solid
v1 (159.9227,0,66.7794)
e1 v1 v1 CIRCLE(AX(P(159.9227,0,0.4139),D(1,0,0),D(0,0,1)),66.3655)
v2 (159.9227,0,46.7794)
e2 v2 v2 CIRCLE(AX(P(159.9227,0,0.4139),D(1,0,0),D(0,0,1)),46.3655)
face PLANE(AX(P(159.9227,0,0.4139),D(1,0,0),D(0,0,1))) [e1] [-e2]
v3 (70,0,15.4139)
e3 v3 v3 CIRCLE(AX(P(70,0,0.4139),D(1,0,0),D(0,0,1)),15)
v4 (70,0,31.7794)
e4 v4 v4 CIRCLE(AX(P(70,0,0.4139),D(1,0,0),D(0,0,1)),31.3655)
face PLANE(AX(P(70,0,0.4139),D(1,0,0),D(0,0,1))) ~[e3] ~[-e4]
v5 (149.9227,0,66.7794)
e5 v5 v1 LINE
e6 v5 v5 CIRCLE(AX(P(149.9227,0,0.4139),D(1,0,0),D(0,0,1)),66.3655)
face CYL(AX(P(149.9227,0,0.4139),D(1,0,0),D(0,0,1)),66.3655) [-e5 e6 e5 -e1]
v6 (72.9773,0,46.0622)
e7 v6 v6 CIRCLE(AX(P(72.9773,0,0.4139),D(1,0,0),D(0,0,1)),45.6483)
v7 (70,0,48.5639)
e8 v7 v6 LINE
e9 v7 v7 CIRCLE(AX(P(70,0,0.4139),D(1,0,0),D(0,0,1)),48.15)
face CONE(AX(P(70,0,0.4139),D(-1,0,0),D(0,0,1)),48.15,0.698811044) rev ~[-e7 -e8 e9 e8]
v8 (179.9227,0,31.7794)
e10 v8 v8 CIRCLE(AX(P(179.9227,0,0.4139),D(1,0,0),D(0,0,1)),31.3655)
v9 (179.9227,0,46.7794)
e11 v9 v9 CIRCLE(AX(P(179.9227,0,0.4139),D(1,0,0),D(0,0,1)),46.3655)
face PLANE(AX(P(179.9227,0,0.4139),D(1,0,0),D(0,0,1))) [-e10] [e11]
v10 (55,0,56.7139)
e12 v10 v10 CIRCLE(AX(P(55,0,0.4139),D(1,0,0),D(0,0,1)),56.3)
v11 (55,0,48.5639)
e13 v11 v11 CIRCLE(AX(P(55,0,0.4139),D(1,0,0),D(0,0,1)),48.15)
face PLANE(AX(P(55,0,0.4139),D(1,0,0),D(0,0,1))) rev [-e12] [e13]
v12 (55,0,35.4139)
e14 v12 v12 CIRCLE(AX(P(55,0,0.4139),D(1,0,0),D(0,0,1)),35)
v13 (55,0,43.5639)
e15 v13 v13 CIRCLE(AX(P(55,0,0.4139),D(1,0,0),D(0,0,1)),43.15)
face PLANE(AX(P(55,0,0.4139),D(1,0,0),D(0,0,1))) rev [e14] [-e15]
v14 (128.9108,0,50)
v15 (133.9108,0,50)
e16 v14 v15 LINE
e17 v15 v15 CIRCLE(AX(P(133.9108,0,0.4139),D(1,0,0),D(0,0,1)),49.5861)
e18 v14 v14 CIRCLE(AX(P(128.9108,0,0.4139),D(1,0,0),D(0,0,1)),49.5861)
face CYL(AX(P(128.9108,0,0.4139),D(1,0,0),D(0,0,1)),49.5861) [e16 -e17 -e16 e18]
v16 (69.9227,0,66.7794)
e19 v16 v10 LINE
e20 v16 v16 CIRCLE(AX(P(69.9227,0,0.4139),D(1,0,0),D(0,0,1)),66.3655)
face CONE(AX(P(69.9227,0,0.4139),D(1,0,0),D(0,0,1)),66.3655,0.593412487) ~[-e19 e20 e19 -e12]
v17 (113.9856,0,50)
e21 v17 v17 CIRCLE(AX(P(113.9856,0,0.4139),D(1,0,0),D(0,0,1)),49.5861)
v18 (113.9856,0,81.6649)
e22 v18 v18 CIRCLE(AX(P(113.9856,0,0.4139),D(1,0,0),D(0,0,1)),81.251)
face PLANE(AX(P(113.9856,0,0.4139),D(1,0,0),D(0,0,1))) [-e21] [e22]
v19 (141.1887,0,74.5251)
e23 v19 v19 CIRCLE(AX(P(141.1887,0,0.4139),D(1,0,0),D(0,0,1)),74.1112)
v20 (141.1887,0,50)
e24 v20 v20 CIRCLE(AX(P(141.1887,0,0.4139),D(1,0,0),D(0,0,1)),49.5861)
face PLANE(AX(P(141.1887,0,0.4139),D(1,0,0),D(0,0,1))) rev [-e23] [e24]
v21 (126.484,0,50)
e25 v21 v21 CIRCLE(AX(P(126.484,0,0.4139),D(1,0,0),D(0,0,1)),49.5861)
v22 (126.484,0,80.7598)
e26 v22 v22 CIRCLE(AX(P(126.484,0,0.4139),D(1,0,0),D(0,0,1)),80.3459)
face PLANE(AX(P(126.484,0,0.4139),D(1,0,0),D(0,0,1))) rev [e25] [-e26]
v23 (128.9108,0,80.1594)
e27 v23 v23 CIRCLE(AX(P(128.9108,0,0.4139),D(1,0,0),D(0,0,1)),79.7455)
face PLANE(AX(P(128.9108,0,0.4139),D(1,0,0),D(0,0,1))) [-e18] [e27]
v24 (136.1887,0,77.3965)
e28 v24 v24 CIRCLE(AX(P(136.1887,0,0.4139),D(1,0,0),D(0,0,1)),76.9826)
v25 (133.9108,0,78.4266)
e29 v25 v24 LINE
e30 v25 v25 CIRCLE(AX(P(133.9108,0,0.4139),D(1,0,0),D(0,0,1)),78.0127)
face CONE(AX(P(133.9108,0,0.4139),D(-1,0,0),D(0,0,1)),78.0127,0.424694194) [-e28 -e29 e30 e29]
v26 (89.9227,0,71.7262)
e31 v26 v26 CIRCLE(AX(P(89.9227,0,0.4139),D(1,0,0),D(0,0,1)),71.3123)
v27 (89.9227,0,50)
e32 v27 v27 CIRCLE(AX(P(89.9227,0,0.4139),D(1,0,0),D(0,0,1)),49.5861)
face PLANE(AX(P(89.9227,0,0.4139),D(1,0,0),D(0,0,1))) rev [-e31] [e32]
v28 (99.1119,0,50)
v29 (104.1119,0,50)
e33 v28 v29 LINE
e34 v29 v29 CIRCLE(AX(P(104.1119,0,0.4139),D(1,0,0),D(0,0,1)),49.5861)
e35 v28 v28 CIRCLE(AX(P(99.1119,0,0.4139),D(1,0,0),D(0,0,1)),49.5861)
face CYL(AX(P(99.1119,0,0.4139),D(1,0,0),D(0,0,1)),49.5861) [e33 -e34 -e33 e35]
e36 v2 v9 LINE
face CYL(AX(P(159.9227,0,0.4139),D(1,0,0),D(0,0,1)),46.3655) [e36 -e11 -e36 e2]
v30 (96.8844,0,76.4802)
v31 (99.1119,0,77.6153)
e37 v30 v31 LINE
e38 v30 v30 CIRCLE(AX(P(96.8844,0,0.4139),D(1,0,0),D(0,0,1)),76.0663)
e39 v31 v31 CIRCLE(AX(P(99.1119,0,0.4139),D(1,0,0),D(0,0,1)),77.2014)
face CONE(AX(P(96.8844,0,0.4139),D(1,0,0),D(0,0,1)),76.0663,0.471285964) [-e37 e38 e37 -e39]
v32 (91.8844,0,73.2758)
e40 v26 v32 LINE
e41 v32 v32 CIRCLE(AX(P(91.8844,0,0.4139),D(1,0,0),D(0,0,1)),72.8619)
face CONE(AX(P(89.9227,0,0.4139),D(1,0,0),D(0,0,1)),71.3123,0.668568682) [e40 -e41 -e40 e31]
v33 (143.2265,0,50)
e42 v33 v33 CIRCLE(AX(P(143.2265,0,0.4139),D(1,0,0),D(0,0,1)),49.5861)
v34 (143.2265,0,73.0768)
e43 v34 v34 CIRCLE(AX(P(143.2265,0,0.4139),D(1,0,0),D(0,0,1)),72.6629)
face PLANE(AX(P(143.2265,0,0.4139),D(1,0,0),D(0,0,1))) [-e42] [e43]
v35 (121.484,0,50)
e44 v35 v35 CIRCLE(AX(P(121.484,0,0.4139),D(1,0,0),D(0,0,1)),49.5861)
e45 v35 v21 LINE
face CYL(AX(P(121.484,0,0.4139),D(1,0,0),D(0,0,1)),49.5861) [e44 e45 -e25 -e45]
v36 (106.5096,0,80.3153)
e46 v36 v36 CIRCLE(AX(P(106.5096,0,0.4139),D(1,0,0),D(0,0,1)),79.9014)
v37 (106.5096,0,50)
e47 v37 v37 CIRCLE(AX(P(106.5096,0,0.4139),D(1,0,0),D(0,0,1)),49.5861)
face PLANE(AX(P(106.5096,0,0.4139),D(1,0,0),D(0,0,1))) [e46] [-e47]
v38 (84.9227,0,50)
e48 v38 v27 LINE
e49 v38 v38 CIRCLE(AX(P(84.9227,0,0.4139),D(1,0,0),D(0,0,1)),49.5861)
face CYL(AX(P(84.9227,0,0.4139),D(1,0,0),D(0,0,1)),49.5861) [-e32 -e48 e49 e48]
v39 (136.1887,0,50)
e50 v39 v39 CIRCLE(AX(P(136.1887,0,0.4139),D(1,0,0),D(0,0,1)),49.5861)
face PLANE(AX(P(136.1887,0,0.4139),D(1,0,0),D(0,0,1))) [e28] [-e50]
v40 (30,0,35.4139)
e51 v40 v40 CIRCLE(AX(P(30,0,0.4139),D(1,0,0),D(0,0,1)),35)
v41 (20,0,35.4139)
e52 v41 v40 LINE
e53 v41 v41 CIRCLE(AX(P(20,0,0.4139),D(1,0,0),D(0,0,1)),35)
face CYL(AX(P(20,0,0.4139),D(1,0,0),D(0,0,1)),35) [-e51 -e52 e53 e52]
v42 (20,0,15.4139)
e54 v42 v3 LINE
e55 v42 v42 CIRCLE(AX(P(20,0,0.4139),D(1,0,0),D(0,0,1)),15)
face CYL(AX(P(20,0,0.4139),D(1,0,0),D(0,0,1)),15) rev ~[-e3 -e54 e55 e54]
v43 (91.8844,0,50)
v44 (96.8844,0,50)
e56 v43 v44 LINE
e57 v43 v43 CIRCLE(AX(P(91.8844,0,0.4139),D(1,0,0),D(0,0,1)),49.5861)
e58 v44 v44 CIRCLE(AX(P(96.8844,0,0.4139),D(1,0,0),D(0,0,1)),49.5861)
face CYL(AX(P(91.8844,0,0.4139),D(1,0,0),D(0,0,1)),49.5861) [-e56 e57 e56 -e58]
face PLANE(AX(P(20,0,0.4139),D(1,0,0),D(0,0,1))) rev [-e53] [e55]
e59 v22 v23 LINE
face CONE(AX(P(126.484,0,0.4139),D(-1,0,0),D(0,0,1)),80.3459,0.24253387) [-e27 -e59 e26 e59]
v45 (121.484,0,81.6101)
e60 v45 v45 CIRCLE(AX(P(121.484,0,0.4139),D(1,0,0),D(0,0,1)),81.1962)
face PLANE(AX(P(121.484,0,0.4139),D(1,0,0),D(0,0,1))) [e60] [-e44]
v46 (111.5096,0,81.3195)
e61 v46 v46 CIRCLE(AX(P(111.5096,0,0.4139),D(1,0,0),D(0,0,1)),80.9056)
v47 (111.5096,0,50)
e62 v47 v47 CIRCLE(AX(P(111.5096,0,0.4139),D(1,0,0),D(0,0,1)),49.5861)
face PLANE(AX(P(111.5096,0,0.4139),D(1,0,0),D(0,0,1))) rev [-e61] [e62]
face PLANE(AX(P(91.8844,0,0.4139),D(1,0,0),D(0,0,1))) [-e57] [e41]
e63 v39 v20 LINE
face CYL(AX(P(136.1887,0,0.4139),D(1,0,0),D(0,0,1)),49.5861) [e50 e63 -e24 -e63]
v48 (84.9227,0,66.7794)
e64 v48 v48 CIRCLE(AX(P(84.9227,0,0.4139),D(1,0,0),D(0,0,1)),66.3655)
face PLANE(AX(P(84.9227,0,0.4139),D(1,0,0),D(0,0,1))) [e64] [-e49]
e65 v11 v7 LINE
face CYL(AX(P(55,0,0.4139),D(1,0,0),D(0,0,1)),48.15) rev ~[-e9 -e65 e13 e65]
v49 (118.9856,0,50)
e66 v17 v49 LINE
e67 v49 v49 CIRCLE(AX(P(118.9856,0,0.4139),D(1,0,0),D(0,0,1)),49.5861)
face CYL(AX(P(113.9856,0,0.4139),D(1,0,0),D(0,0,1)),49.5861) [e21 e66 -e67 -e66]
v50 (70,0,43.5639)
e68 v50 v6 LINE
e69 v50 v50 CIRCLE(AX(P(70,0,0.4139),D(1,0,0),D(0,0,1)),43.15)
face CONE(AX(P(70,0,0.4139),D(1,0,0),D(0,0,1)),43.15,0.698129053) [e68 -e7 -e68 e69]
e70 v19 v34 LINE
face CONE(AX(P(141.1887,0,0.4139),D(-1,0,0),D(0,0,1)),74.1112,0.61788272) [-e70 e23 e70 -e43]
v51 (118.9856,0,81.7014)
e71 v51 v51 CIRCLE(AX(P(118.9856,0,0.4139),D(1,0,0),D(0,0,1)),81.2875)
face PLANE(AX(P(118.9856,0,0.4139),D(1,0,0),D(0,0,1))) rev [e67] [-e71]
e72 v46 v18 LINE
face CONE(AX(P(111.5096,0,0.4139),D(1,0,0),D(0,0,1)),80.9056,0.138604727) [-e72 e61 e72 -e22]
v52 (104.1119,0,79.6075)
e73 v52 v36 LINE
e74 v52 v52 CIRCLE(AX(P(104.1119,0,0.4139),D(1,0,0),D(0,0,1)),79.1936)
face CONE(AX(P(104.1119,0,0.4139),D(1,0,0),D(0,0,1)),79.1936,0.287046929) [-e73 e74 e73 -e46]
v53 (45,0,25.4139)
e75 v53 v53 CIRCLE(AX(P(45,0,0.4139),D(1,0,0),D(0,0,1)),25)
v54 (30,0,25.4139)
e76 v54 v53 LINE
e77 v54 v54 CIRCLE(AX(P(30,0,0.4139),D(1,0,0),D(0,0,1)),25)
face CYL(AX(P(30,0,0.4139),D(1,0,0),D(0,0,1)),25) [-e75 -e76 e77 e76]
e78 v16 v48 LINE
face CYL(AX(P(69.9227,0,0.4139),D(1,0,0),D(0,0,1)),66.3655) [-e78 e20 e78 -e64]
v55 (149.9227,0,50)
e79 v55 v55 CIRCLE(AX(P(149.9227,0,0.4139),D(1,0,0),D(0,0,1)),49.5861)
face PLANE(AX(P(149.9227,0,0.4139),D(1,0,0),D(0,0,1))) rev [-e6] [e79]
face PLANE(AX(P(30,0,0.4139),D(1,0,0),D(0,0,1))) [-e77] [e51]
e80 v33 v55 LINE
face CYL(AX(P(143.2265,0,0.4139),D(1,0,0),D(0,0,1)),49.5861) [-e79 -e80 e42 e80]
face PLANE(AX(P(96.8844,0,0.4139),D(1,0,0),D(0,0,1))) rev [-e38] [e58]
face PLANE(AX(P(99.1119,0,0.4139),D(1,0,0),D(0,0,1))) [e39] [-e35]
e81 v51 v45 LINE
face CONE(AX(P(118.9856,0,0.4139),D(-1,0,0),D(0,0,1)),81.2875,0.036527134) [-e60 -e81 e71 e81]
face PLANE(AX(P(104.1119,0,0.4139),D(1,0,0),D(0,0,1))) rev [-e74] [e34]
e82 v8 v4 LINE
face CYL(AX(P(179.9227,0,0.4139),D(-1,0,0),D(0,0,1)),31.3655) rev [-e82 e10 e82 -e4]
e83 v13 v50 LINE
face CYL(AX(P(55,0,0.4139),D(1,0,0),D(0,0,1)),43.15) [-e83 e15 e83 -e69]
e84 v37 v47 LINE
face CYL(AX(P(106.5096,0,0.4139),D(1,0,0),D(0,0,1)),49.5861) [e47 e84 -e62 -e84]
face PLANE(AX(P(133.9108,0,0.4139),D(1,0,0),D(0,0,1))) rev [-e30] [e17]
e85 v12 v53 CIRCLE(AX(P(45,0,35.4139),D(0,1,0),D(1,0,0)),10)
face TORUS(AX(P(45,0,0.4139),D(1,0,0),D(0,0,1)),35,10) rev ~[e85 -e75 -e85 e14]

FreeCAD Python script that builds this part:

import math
import FreeCAD as App
import Part
import Sketcher

V = App.Vector
Q = App.Units.Quantity

doc = App.newDocument("Part")
params = doc.addObject("Spreadsheet::Sheet", "Params")
for row, (alias, value) in enumerate([
    ("sketch1_radius", "10 mm"),
    ("sketch1_width", "50 mm"),
    ("sketch1_width2", "5 mm"),
    ("sketch1_width3", "20 mm"),
    ("sketch1_length", "18 mm"),
    ("revolution_angle", "360 deg"),
], start=1):
    params.set(f"A{row}", alias)
    params.set(f"B{row}", "=" + value)
    params.setAlias(f"B{row}", alias)

body = doc.addObject("PartDesign::Body", "Body")

sketch1 = body.newObject("Sketcher::SketchObject", "Sketch")
sketch1.AttachmentSupport = (doc.getObject("XZ_Plane"), [""])
sketch1.MapMode = "FlatFace"
sketch1.addGeometry([
    Part.LineSegment(V(70, 15.4, 0), V(20, 15.4, 0)),
    Part.LineSegment(V(20, 15.4, 0), V(20, 35.4, 0)),
    Part.LineSegment(V(20, 35.4, 0), V(30, 35.4, 0)),
    Part.LineSegment(V(30, 35.4, 0), V(30, 25.4, 0)),
    Part.LineSegment(V(30, 25.4, 0), V(45, 25.4, 0)),
    Part.ArcOfCircle(Part.Circle(V(45, 35.4, 0), V(0, 0, 1), 10), math.radians(-90), math.radians(0)),
    Part.LineSegment(V(55, 35.4, 0), V(55, 43.6, 0)),
    Part.LineSegment(V(55, 43.6, 0), V(70, 43.6, 0)),
    Part.LineSegment(V(70, 43.6, 0), V(73, 46.1, 0)),
    Part.LineSegment(V(73, 46.1, 0), V(70, 48.6, 0)),
    Part.LineSegment(V(70, 48.6, 0), V(55, 48.6, 0)),
    Part.LineSegment(V(55, 48.6, 0), V(55, 56.7, 0)),
    Part.LineSegment(V(55, 56.7, 0), V(69.9, 66.8, 0)),
    Part.LineSegment(V(69.9, 66.8, 0), V(84.9, 66.8, 0)),
    Part.LineSegment(V(84.9, 66.8, 0), V(84.9, 50, 0)),
    Part.LineSegment(V(84.9, 50, 0), V(89.9, 50, 0)),
    Part.LineSegment(V(89.9, 50, 0), V(89.9, 71.7, 0)),
    Part.LineSegment(V(89.9, 71.7, 0), V(91.9, 73.3, 0)),
    Part.LineSegment(V(91.9, 73.3, 0), V(91.9, 50, 0)),
    Part.LineSegment(V(91.9, 50, 0), V(96.9, 50, 0)),
    Part.LineSegment(V(96.9, 50, 0), V(96.9, 76.5, 0)),
    Part.LineSegment(V(96.9, 76.5, 0), V(99.1, 77.6, 0)),
    Part.LineSegment(V(99.1, 77.6, 0), V(99.1, 50, 0)),
    Part.LineSegment(V(99.1, 50, 0), V(104.1, 50, 0)),
    Part.LineSegment(V(104.1, 50, 0), V(104.1, 79.6, 0)),
    Part.LineSegment(V(104.1, 79.6, 0), V(106.5, 80.3, 0)),
    Part.LineSegment(V(106.5, 80.3, 0), V(106.5, 50, 0)),
    Part.LineSegment(V(106.5, 50, 0), V(111.5, 50, 0)),
    Part.LineSegment(V(111.5, 50, 0), V(111.5, 81.3, 0)),
    Part.LineSegment(V(111.5, 81.3, 0), V(114, 81.7, 0)),
    Part.LineSegment(V(114, 81.7, 0), V(114, 50, 0)),
    Part.LineSegment(V(114, 50, 0), V(119, 50, 0)),
    Part.LineSegment(V(119, 50, 0), V(119, 81.7, 0)),
    Part.LineSegment(V(119, 81.7, 0), V(121.5, 81.6, 0)),
    Part.LineSegment(V(121.5, 81.6, 0), V(121.5, 50, 0)),
    Part.LineSegment(V(121.5, 50, 0), V(126.5, 50, 0)),
    Part.LineSegment(V(126.5, 50, 0), V(126.5, 80.8, 0)),
    Part.LineSegment(V(126.5, 80.8, 0), V(128.9, 80.2, 0)),
    Part.LineSegment(V(128.9, 80.2, 0), V(128.9, 50, 0)),
    Part.LineSegment(V(128.9, 50, 0), V(133.9, 50, 0)),
    Part.LineSegment(V(133.9, 50, 0), V(133.9, 78.4, 0)),
    Part.LineSegment(V(133.9, 78.4, 0), V(136.2, 77.4, 0)),
    Part.LineSegment(V(136.2, 77.4, 0), V(136.2, 50, 0)),
    Part.LineSegment(V(136.2, 50, 0), V(141.2, 50, 0)),
    Part.LineSegment(V(141.2, 50, 0), V(141.2, 74.5, 0)),
    Part.LineSegment(V(141.2, 74.5, 0), V(143.2, 73.1, 0)),
    Part.LineSegment(V(143.2, 73.1, 0), V(143.2, 50, 0)),
    Part.LineSegment(V(143.2, 50, 0), V(149.9, 50, 0)),
    Part.LineSegment(V(149.9, 50, 0), V(149.9, 66.8, 0)),
    Part.LineSegment(V(149.9, 66.8, 0), V(159.9, 66.8, 0)),
    Part.LineSegment(V(159.9, 66.8, 0), V(159.9, 46.8, 0)),
    Part.LineSegment(V(159.9, 46.8, 0), V(179.9, 46.8, 0)),
    Part.LineSegment(V(179.9, 46.8, 0), V(179.9, 31.8, 0)),
    Part.LineSegment(V(179.9, 31.8, 0), V(70, 31.8, 0)),
    Part.LineSegment(V(70, 31.8, 0), V(70, 15.4, 0)),
], False)
sketch1.addGeometry(Part.LineSegment(V(20, 0.4, 0), V(179.9, 0.4, 0)), True)
sketch1.addConstraint([
    Sketcher.Constraint("Coincident", 0, 2, 1, 1),
    Sketcher.Constraint("Coincident", 1, 2, 2, 1),
    Sketcher.Constraint("Coincident", 2, 2, 3, 1),
    Sketcher.Constraint("Coincident", 3, 2, 4, 1),
    Sketcher.Constraint("Tangent", 4, 2, 5, 1),
    Sketcher.Constraint("Tangent", 5, 2, 6, 1),
    Sketcher.Constraint("Coincident", 6, 2, 7, 1),
    Sketcher.Constraint("Coincident", 7, 2, 8, 1),
    Sketcher.Constraint("Coincident", 8, 2, 9, 1),
    Sketcher.Constraint("Coincident", 9, 2, 10, 1),
    Sketcher.Constraint("Coincident", 10, 2, 11, 1),
    Sketcher.Constraint("Coincident", 11, 2, 12, 1),
    Sketcher.Constraint("Coincident", 12, 2, 13, 1),
    Sketcher.Constraint("Coincident", 13, 2, 14, 1),
    Sketcher.Constraint("Coincident", 14, 2, 15, 1),
    Sketcher.Constraint("Coincident", 15, 2, 16, 1),
    Sketcher.Constraint("Coincident", 16, 2, 17, 1),
    Sketcher.Constraint("Coincident", 17, 2, 18, 1),
    Sketcher.Constraint("Coincident", 18, 2, 19, 1),
    Sketcher.Constraint("Coincident", 19, 2, 20, 1),
    Sketcher.Constraint("Coincident", 20, 2, 21, 1),
    Sketcher.Constraint("Coincident", 21, 2, 22, 1),
    Sketcher.Constraint("Coincident", 22, 2, 23, 1),
    Sketcher.Constraint("Coincident", 23, 2, 24, 1),
    Sketcher.Constraint("Coincident", 24, 2, 25, 1),
    Sketcher.Constraint("Coincident", 25, 2, 26, 1),
    Sketcher.Constraint("Coincident", 26, 2, 27, 1),
    Sketcher.Constraint("Coincident", 27, 2, 28, 1),
    Sketcher.Constraint("Coincident", 28, 2, 29, 1),
    Sketcher.Constraint("Coincident", 29, 2, 30, 1),
    Sketcher.Constraint("Coincident", 30, 2, 31, 1),
    Sketcher.Constraint("Coincident", 31, 2, 32, 1),
    Sketcher.Constraint("Coincident", 32, 2, 33, 1),
    Sketcher.Constraint("Coincident", 33, 2, 34, 1),
    Sketcher.Constraint("Coincident", 34, 2, 35, 1),
    Sketcher.Constraint("Coincident", 35, 2, 36, 1),
    Sketcher.Constraint("Coincident", 36, 2, 37, 1),
    Sketcher.Constraint("Coincident", 37, 2, 38, 1),
    Sketcher.Constraint("Coincident", 38, 2, 39, 1),
    Sketcher.Constraint("Coincident", 39, 2, 40, 1),
    Sketcher.Constraint("Coincident", 40, 2, 41, 1),
    Sketcher.Constraint("Coincident", 41, 2, 42, 1),
    Sketcher.Constraint("Coincident", 42, 2, 43, 1),
    Sketcher.Constraint("Coincident", 43, 2, 44, 1),
    Sketcher.Constraint("Coincident", 44, 2, 45, 1),
    Sketcher.Constraint("Coincident", 45, 2, 46, 1),
    Sketcher.Constraint("Coincident", 46, 2, 47, 1),
    Sketcher.Constraint("Coincident", 47, 2, 48, 1),
    Sketcher.Constraint("Coincident", 48, 2, 49, 1),
    Sketcher.Constraint("Coincident", 49, 2, 50, 1),
    Sketcher.Constraint("Coincident", 50, 2, 51, 1),
    Sketcher.Constraint("Coincident", 51, 2, 52, 1),
    Sketcher.Constraint("Coincident", 52, 2, 53, 1),
    Sketcher.Constraint("Coincident", 53, 2, 54, 1),
    Sketcher.Constraint("Coincident", 54, 2, 0, 1),
    Sketcher.Constraint("Horizontal", 0),
    Sketcher.Constraint("Vertical", 1),
    Sketcher.Constraint("Horizontal", 2),
    Sketcher.Constraint("Vertical", 3),
    Sketcher.Constraint("Horizontal", 4),
    Sketcher.Constraint("Vertical", 6),
    Sketcher.Constraint("Horizontal", 7),
    Sketcher.Constraint("Horizontal", 10),
    Sketcher.Constraint("Vertical", 11),
    Sketcher.Constraint("Horizontal", 13),
    Sketcher.Constraint("Vertical", 14),
    Sketcher.Constraint("Horizontal", 15),
    Sketcher.Constraint("Vertical", 16),
    Sketcher.Constraint("Vertical", 18),
    Sketcher.Constraint("Horizontal", 19),
    Sketcher.Constraint("Vertical", 20),
    Sketcher.Constraint("Vertical", 22),
    Sketcher.Constraint("Horizontal", 23),
    Sketcher.Constraint("Vertical", 24),
    Sketcher.Constraint("Vertical", 26),
    Sketcher.Constraint("Horizontal", 27),
    Sketcher.Constraint("Vertical", 28),
    Sketcher.Constraint("Vertical", 30),
    Sketcher.Constraint("Horizontal", 31),
    Sketcher.Constraint("Vertical", 32),
    Sketcher.Constraint("Vertical", 34),
    Sketcher.Constraint("Horizontal", 35),
    Sketcher.Constraint("Vertical", 36),
    Sketcher.Constraint("Vertical", 38),
    Sketcher.Constraint("Horizontal", 39),
    Sketcher.Constraint("Vertical", 40),
    Sketcher.Constraint("Vertical", 42),
    Sketcher.Constraint("Horizontal", 43),
    Sketcher.Constraint("Vertical", 44),
    Sketcher.Constraint("Vertical", 46),
    Sketcher.Constraint("Horizontal", 47),
    Sketcher.Constraint("Vertical", 48),
    Sketcher.Constraint("Horizontal", 49),
    Sketcher.Constraint("Vertical", 50),
    Sketcher.Constraint("Horizontal", 51),
    Sketcher.Constraint("Vertical", 52),
    Sketcher.Constraint("Horizontal", 53),
    Sketcher.Constraint("Vertical", 54),
    Sketcher.Constraint("Horizontal", 55),
    Sketcher.Constraint("Horizontal", 5, 3, 1, 2),
    Sketcher.Constraint("Horizontal", 15, 2, 18, 2),
    Sketcher.Constraint("Horizontal", 19, 2, 22, 2),
    Sketcher.Constraint("Horizontal", 23, 2, 26, 2),
    Sketcher.Constraint("Horizontal", 27, 2, 30, 2),
    Sketcher.Constraint("Horizontal", 31, 2, 34, 2),
    Sketcher.Constraint("Horizontal", 35, 2, 38, 2),
    Sketcher.Constraint("Horizontal", 39, 2, 42, 2),
    Sketcher.Constraint("Horizontal", 43, 2, 46, 2),
    Sketcher.Constraint("Horizontal", 13, 2, 48, 2),
    Sketcher.Constraint("Vertical", 7, 2, 9, 2),
    Sketcher.Constraint("Vertical", 6, 2, 10, 2),
    Sketcher.Constraint("Vertical", 9, 2, 53, 2),
    Sketcher.Constraint("Vertical", 1, 2, 55, 1),
    Sketcher.Constraint("Vertical", 52, 2, 55, 2),
    Sketcher.Constraint("Equal", 4, 7),
    Sketcher.Constraint("Equal", 10, 13),
    Sketcher.Constraint("Equal", 15, 19),
    Sketcher.Constraint("Equal", 19, 23),
    Sketcher.Constraint("Equal", 23, 27),
    Sketcher.Constraint("Equal", 27, 31),
    Sketcher.Constraint("Equal", 31, 35),
    Sketcher.Constraint("Equal", 35, 39),
    Sketcher.Constraint("Equal", 39, 43),
    Sketcher.Constraint("Equal", 2, 49),
    Sketcher.Constraint("Equal", 51, 1),
    Sketcher.Constraint("Equal", 49, 3),
    Sketcher.Constraint("Equal", 6, 11),
    Sketcher.Constraint("Equal", 1, 50),
    Sketcher.Constraint("Equal", 13, 52),
    Sketcher.Constraint("Equal", 17, 21),
    Sketcher.Constraint("Equal", 21, 25),
    Sketcher.Constraint("Equal", 25, 29),
    Sketcher.Constraint("Equal", 29, 33),
    Sketcher.Constraint("Equal", 33, 37),
    Sketcher.Constraint("Equal", 37, 41),
    Sketcher.Constraint("Equal", 41, 45),
    Sketcher.Constraint("Radius", 5, 10.0),
    Sketcher.Constraint("DistanceX", 0, 2, 0, 1, 50.0),
    Sketcher.Constraint("DistanceX", 15, 1, 15, 2, 5.0),
    Sketcher.Constraint("DistanceX", 51, 1, 51, 2, 20.0),
    Sketcher.Constraint("Distance", 12, 18.0),
    Sketcher.Constraint("DistanceX", -1, 1, 0, 2, 20.0),
    Sketcher.Constraint("DistanceY", -1, 1, 14, 2, 50.0),
    Sketcher.Constraint("DistanceY", 7, 2, 9, 2, 5.0),
    Sketcher.Constraint("DistanceY", 55, 1, 0, 2, 15.0),
    Sketcher.Constraint("Distance", 17, 2.5),
    Sketcher.Constraint("Angle", 8, Q("39.9998 deg")),
    Sketcher.Constraint("Angle", 12, Q("34 deg")),
    Sketcher.Constraint("DistanceY", 6, 1, 6, 2, 8.15),
    Sketcher.Constraint("DistanceY", 34, 2, 34, 1, 31.61),
    Sketcher.Constraint("Angle", 9, Q("139.961 deg")),
    Sketcher.Constraint("DistanceY", 21, 2, 25, 2, 2.7),
    Sketcher.Constraint("DistanceY", 30, 2, 30, 1, 31.665),
    Sketcher.Constraint("DistanceY", 44, 1, 44, 2, 24.525),
    Sketcher.Constraint("DistanceY", 37, 2, 28, 2, 1.16),
    Sketcher.Constraint("DistanceY", 41, 2, 40, 2, 1.03),
    Sketcher.Constraint("DistanceX", 47, 1, 47, 2, 6.6962),
    Sketcher.Constraint("DistanceX", 53, 2, 53, 1, 109.9227),
    Sketcher.Constraint("DistanceY", 14, 2, 14, 1, 16.7794),
    Sketcher.Constraint("DistanceY", 16, 1, 16, 2, 21.7262),
    Sketcher.Constraint("DistanceY", 18, 2, 18, 1, 23.2758),
    Sketcher.Constraint("DistanceY", 20, 1, 20, 2, 26.4802),
    Sketcher.Constraint("DistanceY", 22, 2, 22, 1, 27.6153),
    Sketcher.Constraint("DistanceY", 24, 1, 24, 2, 29.6075),
    Sketcher.Constraint("DistanceY", 28, 1, 28, 2, 31.3195),
    Sketcher.Constraint("DistanceY", 32, 1, 32, 2, 31.7014),
    Sketcher.Constraint("DistanceY", 36, 1, 36, 2, 30.7598),
    Sketcher.Constraint("DistanceY", 40, 1, 40, 2, 28.4266),
])
sketch1.setExpression("Constraints[136]", "Params.sketch1_radius")
sketch1.setExpression("Constraints[137]", "Params.sketch1_width")
sketch1.setExpression("Constraints[138]", "Params.sketch1_width2")
sketch1.setExpression("Constraints[139]", "Params.sketch1_width3")
sketch1.setExpression("Constraints[140]", "Params.sketch1_length")
revolution = body.newObject("PartDesign::Revolution", "Revolution")
revolution.Profile = sketch1
revolution.ReferenceAxis = (sketch1, ["Axis0"])
revolution.setExpression("Angle", "Params.revolution_angle")

doc.recompute()
